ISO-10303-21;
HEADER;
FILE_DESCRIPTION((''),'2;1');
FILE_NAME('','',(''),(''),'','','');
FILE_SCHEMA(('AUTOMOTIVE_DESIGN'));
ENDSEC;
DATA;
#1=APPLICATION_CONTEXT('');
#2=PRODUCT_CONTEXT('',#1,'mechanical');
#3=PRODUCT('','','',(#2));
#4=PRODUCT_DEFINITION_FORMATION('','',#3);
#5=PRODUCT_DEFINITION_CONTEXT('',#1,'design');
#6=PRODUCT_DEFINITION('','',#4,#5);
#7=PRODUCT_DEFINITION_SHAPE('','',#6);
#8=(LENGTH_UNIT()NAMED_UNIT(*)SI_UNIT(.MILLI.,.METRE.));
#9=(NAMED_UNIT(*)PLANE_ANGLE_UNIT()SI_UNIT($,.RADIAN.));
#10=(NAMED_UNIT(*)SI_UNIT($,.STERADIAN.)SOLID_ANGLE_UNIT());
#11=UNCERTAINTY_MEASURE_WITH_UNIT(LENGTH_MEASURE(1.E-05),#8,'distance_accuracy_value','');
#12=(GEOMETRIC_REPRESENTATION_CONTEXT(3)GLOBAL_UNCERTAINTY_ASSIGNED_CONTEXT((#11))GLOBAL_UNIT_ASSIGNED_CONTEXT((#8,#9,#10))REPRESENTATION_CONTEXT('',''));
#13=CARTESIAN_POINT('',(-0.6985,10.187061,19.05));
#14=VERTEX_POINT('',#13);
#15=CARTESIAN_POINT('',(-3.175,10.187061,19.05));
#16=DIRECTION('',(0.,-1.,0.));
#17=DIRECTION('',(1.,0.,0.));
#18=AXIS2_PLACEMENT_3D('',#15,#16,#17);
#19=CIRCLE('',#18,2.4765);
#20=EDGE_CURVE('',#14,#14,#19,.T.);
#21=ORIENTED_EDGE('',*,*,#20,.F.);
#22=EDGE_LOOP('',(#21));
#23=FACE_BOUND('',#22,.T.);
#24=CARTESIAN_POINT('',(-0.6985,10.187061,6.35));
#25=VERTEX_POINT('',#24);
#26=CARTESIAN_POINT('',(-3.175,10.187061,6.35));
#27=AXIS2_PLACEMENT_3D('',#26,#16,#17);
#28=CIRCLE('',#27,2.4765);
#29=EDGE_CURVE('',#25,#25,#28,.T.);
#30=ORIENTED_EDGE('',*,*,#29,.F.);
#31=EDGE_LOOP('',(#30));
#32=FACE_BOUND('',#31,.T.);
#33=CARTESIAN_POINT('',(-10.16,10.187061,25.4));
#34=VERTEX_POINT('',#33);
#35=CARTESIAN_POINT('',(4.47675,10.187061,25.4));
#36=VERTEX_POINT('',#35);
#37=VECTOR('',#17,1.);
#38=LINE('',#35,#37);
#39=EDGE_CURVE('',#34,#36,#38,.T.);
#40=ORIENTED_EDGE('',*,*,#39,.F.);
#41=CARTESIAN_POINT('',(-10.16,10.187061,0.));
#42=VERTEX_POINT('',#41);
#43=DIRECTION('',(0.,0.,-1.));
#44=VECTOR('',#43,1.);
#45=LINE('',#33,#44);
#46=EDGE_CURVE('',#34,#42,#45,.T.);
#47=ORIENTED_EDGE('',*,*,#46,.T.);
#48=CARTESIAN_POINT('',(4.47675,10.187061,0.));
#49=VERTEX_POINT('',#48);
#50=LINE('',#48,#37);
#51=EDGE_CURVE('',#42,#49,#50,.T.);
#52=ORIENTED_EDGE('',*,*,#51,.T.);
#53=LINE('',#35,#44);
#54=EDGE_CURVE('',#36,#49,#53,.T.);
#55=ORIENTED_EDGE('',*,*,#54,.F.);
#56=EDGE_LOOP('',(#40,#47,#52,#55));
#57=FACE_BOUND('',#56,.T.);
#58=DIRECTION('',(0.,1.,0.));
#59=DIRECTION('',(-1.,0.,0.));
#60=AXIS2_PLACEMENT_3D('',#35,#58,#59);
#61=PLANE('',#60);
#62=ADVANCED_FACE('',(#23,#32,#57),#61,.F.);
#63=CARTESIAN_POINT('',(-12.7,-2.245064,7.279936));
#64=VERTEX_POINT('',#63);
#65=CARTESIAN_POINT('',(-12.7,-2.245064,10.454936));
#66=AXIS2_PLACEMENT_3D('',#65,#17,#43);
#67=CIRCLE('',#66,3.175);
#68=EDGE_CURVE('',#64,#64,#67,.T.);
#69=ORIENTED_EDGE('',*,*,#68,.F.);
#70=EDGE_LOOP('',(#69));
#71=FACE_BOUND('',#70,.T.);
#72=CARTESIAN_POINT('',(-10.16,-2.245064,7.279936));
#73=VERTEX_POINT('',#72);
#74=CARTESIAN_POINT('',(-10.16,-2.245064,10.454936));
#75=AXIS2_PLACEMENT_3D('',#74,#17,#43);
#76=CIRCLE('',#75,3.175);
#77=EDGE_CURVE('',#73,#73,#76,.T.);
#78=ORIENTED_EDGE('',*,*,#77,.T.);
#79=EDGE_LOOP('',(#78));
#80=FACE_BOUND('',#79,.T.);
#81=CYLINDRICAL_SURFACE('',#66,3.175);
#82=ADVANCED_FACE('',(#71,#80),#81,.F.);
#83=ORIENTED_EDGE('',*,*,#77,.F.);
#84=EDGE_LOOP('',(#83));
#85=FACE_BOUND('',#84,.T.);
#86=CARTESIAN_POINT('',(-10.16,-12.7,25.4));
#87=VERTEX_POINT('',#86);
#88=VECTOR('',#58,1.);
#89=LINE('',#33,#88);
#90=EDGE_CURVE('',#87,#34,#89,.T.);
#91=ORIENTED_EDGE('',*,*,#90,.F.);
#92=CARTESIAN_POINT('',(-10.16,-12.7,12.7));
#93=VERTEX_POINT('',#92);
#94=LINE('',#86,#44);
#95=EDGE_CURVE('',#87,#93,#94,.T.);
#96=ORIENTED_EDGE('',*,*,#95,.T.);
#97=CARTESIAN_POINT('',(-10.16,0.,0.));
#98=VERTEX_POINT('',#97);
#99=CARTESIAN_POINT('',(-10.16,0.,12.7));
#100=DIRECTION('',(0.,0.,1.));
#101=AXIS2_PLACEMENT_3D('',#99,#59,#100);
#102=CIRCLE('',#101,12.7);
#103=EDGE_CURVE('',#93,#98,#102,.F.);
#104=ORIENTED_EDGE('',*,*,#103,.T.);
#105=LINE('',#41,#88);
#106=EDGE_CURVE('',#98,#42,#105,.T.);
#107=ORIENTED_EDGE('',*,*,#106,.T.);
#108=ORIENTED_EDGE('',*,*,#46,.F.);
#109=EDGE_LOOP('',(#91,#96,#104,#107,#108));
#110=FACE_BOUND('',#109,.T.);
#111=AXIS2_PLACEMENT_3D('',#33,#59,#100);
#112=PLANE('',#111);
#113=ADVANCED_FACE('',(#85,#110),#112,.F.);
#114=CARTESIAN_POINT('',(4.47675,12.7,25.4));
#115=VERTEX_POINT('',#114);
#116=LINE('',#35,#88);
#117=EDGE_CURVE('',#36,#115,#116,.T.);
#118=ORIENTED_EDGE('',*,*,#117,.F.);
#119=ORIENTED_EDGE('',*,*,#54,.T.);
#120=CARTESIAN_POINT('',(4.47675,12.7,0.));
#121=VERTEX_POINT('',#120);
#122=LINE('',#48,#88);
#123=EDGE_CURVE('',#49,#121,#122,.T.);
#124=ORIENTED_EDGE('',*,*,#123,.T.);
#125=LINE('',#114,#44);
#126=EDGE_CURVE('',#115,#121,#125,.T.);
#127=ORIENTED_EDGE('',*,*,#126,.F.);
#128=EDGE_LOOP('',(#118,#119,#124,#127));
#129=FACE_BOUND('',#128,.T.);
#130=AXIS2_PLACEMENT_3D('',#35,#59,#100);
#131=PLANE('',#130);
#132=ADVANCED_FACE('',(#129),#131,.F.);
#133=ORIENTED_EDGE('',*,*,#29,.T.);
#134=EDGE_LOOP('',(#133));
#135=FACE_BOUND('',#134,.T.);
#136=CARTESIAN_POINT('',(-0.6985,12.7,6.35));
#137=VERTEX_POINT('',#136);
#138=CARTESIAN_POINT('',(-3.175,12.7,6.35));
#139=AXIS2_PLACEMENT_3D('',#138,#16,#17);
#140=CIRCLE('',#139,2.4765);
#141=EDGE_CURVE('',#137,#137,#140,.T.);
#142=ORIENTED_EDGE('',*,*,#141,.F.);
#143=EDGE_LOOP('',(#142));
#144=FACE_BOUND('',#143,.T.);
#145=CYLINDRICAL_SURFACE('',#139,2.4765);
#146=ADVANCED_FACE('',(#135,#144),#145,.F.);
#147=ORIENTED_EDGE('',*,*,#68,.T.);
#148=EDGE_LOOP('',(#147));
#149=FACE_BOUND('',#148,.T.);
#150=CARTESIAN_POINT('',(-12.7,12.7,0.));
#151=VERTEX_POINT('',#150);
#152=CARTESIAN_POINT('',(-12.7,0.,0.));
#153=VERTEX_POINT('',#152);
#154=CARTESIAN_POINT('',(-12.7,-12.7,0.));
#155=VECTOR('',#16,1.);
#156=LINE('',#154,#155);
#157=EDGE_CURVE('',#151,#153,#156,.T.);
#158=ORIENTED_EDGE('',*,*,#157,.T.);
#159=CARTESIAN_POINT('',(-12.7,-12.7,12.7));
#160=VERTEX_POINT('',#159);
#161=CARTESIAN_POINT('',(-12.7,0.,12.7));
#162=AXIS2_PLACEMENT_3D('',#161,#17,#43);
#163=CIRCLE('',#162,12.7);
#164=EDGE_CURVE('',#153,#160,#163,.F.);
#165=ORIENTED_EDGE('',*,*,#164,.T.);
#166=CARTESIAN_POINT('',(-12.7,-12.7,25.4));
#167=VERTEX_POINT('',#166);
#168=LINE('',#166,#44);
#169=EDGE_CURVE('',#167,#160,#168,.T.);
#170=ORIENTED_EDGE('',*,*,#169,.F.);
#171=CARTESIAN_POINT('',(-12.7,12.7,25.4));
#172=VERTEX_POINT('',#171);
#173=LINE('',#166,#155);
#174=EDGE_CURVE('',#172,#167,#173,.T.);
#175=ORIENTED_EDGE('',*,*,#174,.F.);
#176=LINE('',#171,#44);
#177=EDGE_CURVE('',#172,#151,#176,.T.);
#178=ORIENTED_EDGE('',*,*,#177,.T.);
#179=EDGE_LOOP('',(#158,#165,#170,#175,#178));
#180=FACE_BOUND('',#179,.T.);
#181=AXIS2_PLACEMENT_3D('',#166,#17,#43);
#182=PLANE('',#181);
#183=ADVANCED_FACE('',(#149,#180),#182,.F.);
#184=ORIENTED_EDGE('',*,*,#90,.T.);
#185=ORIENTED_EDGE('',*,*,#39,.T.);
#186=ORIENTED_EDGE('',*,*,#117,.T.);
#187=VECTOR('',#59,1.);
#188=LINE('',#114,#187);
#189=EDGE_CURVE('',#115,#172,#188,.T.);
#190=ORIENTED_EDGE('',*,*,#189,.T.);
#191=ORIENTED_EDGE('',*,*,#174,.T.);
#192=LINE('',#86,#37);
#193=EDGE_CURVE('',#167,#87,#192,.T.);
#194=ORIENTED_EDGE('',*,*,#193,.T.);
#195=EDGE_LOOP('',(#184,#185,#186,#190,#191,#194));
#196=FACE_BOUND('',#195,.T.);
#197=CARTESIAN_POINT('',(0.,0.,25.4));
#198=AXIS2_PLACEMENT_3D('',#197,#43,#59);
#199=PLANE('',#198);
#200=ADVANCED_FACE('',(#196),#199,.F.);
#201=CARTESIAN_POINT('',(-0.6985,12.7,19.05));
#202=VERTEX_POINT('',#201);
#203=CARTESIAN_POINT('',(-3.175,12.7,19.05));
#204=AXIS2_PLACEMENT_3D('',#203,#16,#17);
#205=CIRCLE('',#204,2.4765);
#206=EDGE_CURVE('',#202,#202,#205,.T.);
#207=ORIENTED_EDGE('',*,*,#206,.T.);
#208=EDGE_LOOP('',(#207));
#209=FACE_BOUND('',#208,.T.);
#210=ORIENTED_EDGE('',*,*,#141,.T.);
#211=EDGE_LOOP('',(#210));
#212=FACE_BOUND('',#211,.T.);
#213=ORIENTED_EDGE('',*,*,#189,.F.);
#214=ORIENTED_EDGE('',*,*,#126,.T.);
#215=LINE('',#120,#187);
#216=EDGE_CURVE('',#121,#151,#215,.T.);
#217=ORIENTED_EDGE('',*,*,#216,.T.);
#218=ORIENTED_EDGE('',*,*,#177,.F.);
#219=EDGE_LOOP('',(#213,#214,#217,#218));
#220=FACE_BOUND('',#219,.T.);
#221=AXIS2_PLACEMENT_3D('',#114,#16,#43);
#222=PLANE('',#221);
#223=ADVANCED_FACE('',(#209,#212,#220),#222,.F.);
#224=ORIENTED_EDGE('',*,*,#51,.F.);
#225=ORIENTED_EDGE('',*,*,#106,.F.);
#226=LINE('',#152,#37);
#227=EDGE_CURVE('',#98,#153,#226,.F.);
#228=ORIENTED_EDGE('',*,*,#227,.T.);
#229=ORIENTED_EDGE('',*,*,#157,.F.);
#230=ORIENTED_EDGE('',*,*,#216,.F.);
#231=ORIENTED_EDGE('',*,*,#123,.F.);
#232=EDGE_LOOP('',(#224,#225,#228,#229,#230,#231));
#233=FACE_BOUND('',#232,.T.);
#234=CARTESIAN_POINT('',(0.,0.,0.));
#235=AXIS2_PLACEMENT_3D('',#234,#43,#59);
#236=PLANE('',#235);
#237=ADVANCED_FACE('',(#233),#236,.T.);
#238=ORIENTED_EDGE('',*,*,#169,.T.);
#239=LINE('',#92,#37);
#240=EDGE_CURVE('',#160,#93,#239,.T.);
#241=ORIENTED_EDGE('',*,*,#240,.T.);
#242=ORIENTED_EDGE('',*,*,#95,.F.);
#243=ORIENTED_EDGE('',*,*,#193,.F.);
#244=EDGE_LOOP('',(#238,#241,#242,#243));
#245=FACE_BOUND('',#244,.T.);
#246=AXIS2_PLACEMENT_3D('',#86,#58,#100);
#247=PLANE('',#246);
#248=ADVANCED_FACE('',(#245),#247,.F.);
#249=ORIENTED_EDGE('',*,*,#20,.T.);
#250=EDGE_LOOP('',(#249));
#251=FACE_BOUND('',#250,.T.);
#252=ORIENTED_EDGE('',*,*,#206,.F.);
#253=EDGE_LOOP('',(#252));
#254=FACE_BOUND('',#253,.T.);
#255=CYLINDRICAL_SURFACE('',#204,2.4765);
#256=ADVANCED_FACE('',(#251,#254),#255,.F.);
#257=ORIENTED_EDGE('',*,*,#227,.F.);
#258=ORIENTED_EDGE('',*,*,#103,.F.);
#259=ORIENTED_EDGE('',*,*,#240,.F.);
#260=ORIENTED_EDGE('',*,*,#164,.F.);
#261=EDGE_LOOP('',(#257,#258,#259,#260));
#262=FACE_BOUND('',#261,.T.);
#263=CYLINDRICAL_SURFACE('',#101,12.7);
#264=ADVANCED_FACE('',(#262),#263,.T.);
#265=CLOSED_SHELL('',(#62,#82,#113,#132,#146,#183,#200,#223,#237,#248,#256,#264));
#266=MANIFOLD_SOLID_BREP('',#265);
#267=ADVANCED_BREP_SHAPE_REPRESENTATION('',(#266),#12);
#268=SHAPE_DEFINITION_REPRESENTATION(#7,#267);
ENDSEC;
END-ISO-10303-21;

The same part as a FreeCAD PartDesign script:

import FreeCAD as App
import Part
import Sketcher
from FreeCAD import Vector
Q = App.Units.Quantity


def edges_at(feature, points):
    """Names of the edges that pass closest to the given points."""
    edges = feature.Shape.Edges
    near = lambda p: min(range(len(edges)), key=lambda i: edges[i].distToShape(Part.Vertex(*p))[0])
    return sorted({f"Edge{near(p) + 1}" for p in points})


def add_polygon(sketch, points):
    """Adds a closed chain of lines whose ends are joined by coincident constraints."""
    first, n = sketch.GeometryCount, len(points)
    for a, b in zip(points, points[1:] + points[:1]):
        sketch.addGeometry(Part.LineSegment(App.Vector(*a, 0), App.Vector(*b, 0)), False)
    for i in range(n):
        sketch.addConstraint(Sketcher.Constraint("Coincident", first + i, 2, first + (i + 1) % n, 1))

doc = App.newDocument("Part")
body = doc.addObject("PartDesign::Body", "Body")

sketch1 = body.newObject("Sketcher::SketchObject", "Sketch")
sketch1.AttachmentSupport = (doc.getObject("XY_Plane"), [""])
sketch1.MapMode = "FlatFace"
add_polygon(sketch1, [(-12.7, 12.7), (-12.7, -12.7), (-10.2, -12.7), (-10.2, 10.2), (4.5, 10.2), (4.5, 12.7)])
sketch1.addConstraint([
    Sketcher.Constraint("Vertical", 0),
    Sketcher.Constraint("Horizontal", 1),
    Sketcher.Constraint("Vertical", 2),
    Sketcher.Constraint("Horizontal", 3),
    Sketcher.Constraint("Vertical", 4),
    Sketcher.Constraint("Horizontal", 5),
    Sketcher.Constraint("DistanceY", 0, 2, 0, 1, Q("1 in")),
    Sketcher.Constraint("DistanceX", 1, 1, 1, 2, Q("0.1 in")),
    Sketcher.Constraint("DistanceX", 0, 2, -1, 1, Q("0.5 in")),
    Sketcher.Constraint("DistanceY", 0, 2, -1, 1, Q("0.5 in")),
    Sketcher.Constraint("DistanceX", 3, 1, 3, 2, 14.63675),
    Sketcher.Constraint("DistanceY", 2, 1, 2, 2, 22.887061),
])
pad1 = body.newObject("PartDesign::Pad", "Pad")
pad1.Profile = sketch1
pad1.Length = Q("1 in")
doc.recompute()

fillet = body.newObject("PartDesign::Fillet", "Fillet")
fillet.Base = (pad1, edges_at(pad1, [(-11.43, -12.7, 0)]))
fillet.Radius = Q("0.5 in")

sketch2 = body.newObject("Sketcher::SketchObject", "Sketch001")
sketch2.AttachmentSupport = (doc.getObject("YZ_Plane"), [""])
sketch2.MapMode = "FlatFace"
sketch2.AttachmentOffset = App.Placement(Vector(0, 0, -0.4 * 25.4), App.Rotation())
sketch2.addGeometry(Part.Circle(Vector(-2.2, 10.5, 0), Vector(0, 0, 1), 3.2), False)
sketch2.addConstraint([
    Sketcher.Constraint("Diameter", 0, Q("0.25 in")),
    Sketcher.Constraint("DistanceX", 0, 3, -1, 1, 2.245064),
    Sketcher.Constraint("DistanceY", -1, 1, 0, 3, 10.454936),
])
pocket1 = body.newObject("PartDesign::Pocket", "Pocket")
pocket1.Profile = sketch2
pocket1.Type = "ThroughAll"

sketch3 = body.newObject("Sketcher::SketchObject", "Sketch002")
sketch3.AttachmentSupport = (doc.getObject("XZ_Plane"), [""])
sketch3.MapMode = "FlatFace"
sketch3.AttachmentOffset = App.Placement(Vector(0, 0, -10.187061), App.Rotation())
sketch3.addGeometry([
    Part.Circle(Vector(-3.2, 19.1, 0), Vector(0, 0, 1), 2.5),
    Part.Circle(Vector(-3.2, 6.3, 0), Vector(0, 0, 1), 2.5),
], False)
sketch3.addConstraint([
    Sketcher.Constraint("Equal", 0, 1),
    Sketcher.Constraint("Vertical", 0, 3, 1, 3),
    Sketcher.Constraint("Diameter", 0, Q("0.195 in")),
    Sketcher.Constraint("DistanceY", 1, 3, 0, 3, Q("0.5 in")),
    Sketcher.Constraint("DistanceY", -1, 1, 0, 3, Q("0.75 in")),
    Sketcher.Constraint("DistanceX", 0, 3, -1, 1, Q("0.125 in")),
])
pocket2 = body.newObject("PartDesign::Pocket", "Pocket001")
pocket2.Profile = sketch3
pocket2.Type = "ThroughAll"

doc.recompute()
